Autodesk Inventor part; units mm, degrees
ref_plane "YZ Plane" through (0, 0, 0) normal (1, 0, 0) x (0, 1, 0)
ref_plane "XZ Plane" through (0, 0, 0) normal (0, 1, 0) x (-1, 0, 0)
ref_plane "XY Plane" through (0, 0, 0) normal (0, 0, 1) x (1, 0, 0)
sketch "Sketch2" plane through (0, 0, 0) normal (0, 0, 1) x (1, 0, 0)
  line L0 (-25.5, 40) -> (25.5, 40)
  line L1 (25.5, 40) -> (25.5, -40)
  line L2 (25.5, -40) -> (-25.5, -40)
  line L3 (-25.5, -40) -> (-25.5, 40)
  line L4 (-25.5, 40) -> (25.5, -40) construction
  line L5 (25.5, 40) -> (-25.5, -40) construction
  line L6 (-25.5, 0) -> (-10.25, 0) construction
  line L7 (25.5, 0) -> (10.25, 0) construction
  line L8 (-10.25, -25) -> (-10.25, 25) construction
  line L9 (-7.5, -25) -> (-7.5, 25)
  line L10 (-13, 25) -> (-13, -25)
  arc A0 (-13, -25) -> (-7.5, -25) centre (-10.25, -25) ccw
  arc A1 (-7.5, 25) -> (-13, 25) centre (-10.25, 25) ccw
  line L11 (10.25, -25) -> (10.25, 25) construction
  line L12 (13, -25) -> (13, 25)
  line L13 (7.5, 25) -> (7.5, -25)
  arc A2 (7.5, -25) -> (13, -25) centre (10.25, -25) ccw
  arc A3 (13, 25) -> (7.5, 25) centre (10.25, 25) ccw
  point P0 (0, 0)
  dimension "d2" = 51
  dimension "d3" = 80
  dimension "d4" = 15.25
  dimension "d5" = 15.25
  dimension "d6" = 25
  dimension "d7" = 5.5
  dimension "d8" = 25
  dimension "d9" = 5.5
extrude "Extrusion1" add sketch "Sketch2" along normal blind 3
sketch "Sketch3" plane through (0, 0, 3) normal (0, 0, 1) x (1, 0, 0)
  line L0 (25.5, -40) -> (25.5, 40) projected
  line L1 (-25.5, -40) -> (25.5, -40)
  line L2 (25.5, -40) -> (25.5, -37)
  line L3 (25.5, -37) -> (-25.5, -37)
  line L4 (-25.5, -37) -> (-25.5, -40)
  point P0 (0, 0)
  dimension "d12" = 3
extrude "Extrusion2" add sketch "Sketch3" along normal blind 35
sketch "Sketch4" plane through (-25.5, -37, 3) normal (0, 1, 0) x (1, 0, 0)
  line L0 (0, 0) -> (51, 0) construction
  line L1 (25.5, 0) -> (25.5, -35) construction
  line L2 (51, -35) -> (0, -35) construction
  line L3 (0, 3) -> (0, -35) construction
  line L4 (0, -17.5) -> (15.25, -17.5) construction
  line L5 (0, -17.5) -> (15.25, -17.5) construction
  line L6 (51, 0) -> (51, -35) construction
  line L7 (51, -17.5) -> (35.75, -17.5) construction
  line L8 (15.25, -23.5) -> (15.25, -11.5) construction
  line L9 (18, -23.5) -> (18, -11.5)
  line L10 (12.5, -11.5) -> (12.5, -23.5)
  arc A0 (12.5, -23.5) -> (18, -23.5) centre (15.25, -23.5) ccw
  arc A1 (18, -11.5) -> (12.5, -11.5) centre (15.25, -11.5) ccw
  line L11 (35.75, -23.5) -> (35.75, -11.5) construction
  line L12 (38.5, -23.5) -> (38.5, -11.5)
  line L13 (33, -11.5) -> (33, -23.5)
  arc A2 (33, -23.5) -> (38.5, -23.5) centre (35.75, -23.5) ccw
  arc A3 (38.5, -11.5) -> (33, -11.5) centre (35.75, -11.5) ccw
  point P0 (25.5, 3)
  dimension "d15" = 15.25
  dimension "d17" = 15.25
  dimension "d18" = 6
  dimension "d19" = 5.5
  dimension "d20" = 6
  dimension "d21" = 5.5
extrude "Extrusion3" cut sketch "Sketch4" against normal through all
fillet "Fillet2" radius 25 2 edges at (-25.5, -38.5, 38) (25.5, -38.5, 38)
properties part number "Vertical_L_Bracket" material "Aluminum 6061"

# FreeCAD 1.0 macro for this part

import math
import FreeCAD as App
import Part
import Sketcher


def edges_at(feature, points):
    """Names of the edges that pass closest to the given points."""
    edges = feature.Shape.Edges
    near = lambda p: min(range(len(edges)), key=lambda i: edges[i].distToShape(Part.Vertex(*p))[0])
    return sorted({f"Edge{near(p) + 1}" for p in points})

doc = App.newDocument("Part")
body = doc.addObject("PartDesign::Body", "Body")

# Sketch on XY plane
sketch1 = body.newObject("Sketcher::SketchObject", "Sketch")
sketch1.AttachmentSupport = (doc.getObject("XY_Plane"), [""])
sketch1.MapMode = "FlatFace"
sketch1.addGeometry(Part.LineSegment(App.Vector(25.5, 40, 0), App.Vector(-25.5, 40, 0)), False)
sketch1.addGeometry(Part.LineSegment(App.Vector(-25.5, 40, 0), App.Vector(-25.5, -40, 0)), False)
sketch1.addGeometry(Part.LineSegment(App.Vector(-25.5, -40, 0), App.Vector(25.5, -40, 0)), False)
sketch1.addGeometry(Part.LineSegment(App.Vector(25.5, -40, 0), App.Vector(25.5, 40, 0)), False)
sketch1.addGeometry(Part.LineSegment(App.Vector(-7.5, 25, 0), App.Vector(-7.5, -25, 0)), False)
sketch1.addGeometry(Part.ArcOfCircle(Part.Circle(App.Vector(-10.2, -25, 0), App.Vector(0, 0, 1), 2.8), math.radians(180), math.radians(360)), False)
sketch1.addGeometry(Part.LineSegment(App.Vector(-13, -25, 0), App.Vector(-13, 25, 0)), False)
sketch1.addGeometry(Part.ArcOfCircle(Part.Circle(App.Vector(-10.2, 25, 0), App.Vector(0, 0, 1), 2.8), math.radians(0), math.radians(180)), False)
sketch1.addGeometry(Part.LineSegment(App.Vector(13, 25, 0), App.Vector(13, -25, 0)), False)
sketch1.addGeometry(Part.ArcOfCircle(Part.Circle(App.Vector(10.2, -25, 0), App.Vector(0, 0, 1), 2.8), math.radians(180), math.radians(360)), False)
sketch1.addGeometry(Part.LineSegment(App.Vector(7.5, -25, 0), App.Vector(7.5, 25, 0)), False)
sketch1.addGeometry(Part.ArcOfCircle(Part.Circle(App.Vector(10.2, 25, 0), App.Vector(0, 0, 1), 2.8), math.radians(0), math.radians(180)), False)
sketch1.addConstraint(Sketcher.Constraint("Coincident", 0, 2, 1, 1))
sketch1.addConstraint(Sketcher.Constraint("Coincident", 1, 2, 2, 1))
sketch1.addConstraint(Sketcher.Constraint("Coincident", 2, 2, 3, 1))
sketch1.addConstraint(Sketcher.Constraint("Coincident", 3, 2, 0, 1))
sketch1.addConstraint(Sketcher.Constraint("Tangent", 4, 2, 5, 2))
sketch1.addConstraint(Sketcher.Constraint("Tangent", 5, 1, 6, 1))
sketch1.addConstraint(Sketcher.Constraint("Tangent", 6, 2, 7, 2))
sketch1.addConstraint(Sketcher.Constraint("Tangent", 7, 1, 4, 1))
sketch1.addConstraint(Sketcher.Constraint("Tangent", 8, 2, 9, 2))
sketch1.addConstraint(Sketcher.Constraint("Tangent", 9, 1, 10, 1))
sketch1.addConstraint(Sketcher.Constraint("Tangent", 10, 2, 11, 2))
sketch1.addConstraint(Sketcher.Constraint("Tangent", 11, 1, 8, 1))
sketch1.addConstraint(Sketcher.Constraint("Horizontal", 0))
sketch1.addConstraint(Sketcher.Constraint("Vertical", 1))
sketch1.addConstraint(Sketcher.Constraint("Horizontal", 2))
sketch1.addConstraint(Sketcher.Constraint("Vertical", 3))
sketch1.addConstraint(Sketcher.Constraint("Vertical", 4))
sketch1.addConstraint(Sketcher.Constraint("Vertical", 6))
sketch1.addConstraint(Sketcher.Constraint("Vertical", 8))
sketch1.addConstraint(Sketcher.Constraint("Vertical", 10))
sketch1.addConstraint(Sketcher.Constraint("Equal", 7, 9))
sketch1.addConstraint(Sketcher.Constraint("Symmetric", 7, 3, 9, 3, -1, 1))
sketch1.addConstraint(Sketcher.Constraint("Symmetric", 0, 2, 2, 2, -1, 1))
sketch1.addConstraint(Sketcher.Constraint("Horizontal", 5, 3, 9, 3))
sketch1.addConstraint(Sketcher.Constraint("Horizontal", 7, 3, 11, 3))
sketch1.addConstraint(Sketcher.Constraint("DistanceX", 0, 2, 0, 1, 51.0))
sketch1.addConstraint(Sketcher.Constraint("DistanceY", 1, 2, 1, 1, 80.0))
sketch1.addConstraint(Sketcher.Constraint("Radius", 5, 2.75))
sketch1.addConstraint(Sketcher.Constraint("DistanceY", 5, 3, -1, 1, 25.0))
sketch1.addConstraint(Sketcher.Constraint("DistanceX", 0, 2, 7, 3, 15.25))
pad1 = body.newObject("PartDesign::Pad", "Pad")
pad1.Profile = sketch1
pad1.Length = 3

# Sketch on XY plane
sketch2 = body.newObject("Sketcher::SketchObject", "Sketch001")
sketch2.AttachmentSupport = (doc.getObject("XY_Plane"), [""])
sketch2.MapMode = "FlatFace"
sketch2.AttachmentOffset = App.Placement(App.Vector(0, 0, 3), App.Rotation())
sketch2.addGeometry(Part.LineSegment(App.Vector(-25.5, -40, 0), App.Vector(25.5, -40, 0)), False)
sketch2.addGeometry(Part.LineSegment(App.Vector(25.5, -40, 0), App.Vector(25.5, -37, 0)), False)
sketch2.addGeometry(Part.LineSegment(App.Vector(25.5, -37, 0), App.Vector(-25.5, -37, 0)), False)
sketch2.addGeometry(Part.LineSegment(App.Vector(-25.5, -37, 0), App.Vector(-25.5, -40, 0)), False)
sketch2.addConstraint(Sketcher.Constraint("Coincident", 0, 2, 1, 1))
sketch2.addConstraint(Sketcher.Constraint("Coincident", 1, 2, 2, 1))
sketch2.addConstraint(Sketcher.Constraint("Coincident", 2, 2, 3, 1))
sketch2.addConstraint(Sketcher.Constraint("Coincident", 3, 2, 0, 1))
sketch2.addConstraint(Sketcher.Constraint("Horizontal", 0))
sketch2.addConstraint(Sketcher.Constraint("Vertical", 1))
sketch2.addConstraint(Sketcher.Constraint("Horizontal", 2))
sketch2.addConstraint(Sketcher.Constraint("Vertical", 3))
sketch2.addConstraint(Sketcher.Constraint("DistanceY", 1, 1, 1, 2, 3.0))
sketch2.addConstraint(Sketcher.Constraint("DistanceX", 0, 1, 0, 2, 51.0))
sketch2.addConstraint(Sketcher.Constraint("DistanceY", 0, 2, -1, 1, 40.0))
sketch2.addConstraint(Sketcher.Constraint("DistanceX", -1, 1, 0, 2, 25.5))
pad2 = body.newObject("PartDesign::Pad", "Pad001")
pad2.Profile = sketch2
pad2.Length = 35

# Sketch on XZ plane
sketch3 = body.newObject("Sketcher::SketchObject", "Sketch002")
sketch3.AttachmentSupport = (doc.getObject("XZ_Plane"), [""])
sketch3.MapMode = "FlatFace"
sketch3.AttachmentOffset = App.Placement(App.Vector(0, 0, 37), App.Rotation())
sketch3.addGeometry(Part.ArcOfCircle(Part.Circle(App.Vector(-10.2, 26.5, 0), App.Vector(0, 0, 1), 2.8), math.radians(0), math.radians(180)), False)
sketch3.addGeometry(Part.LineSegment(App.Vector(-7.5, 26.5, 0), App.Vector(-7.5, 14.5, 0)), False)
sketch3.addGeometry(Part.ArcOfCircle(Part.Circle(App.Vector(-10.2, 14.5, 0), App.Vector(0, 0, 1), 2.8), math.radians(180), math.radians(360)), False)
sketch3.addGeometry(Part.LineSegment(App.Vector(-13, 14.5, 0), App.Vector(-13, 26.5, 0)), False)
sketch3.addGeometry(Part.ArcOfCircle(Part.Circle(App.Vector(10.2, 26.5, 0), App.Vector(0, 0, 1), 2.8), math.radians(0), math.radians(180)), False)
sketch3.addGeometry(Part.LineSegment(App.Vector(13, 26.5, 0), App.Vector(13, 14.5, 0)), False)
sketch3.addGeometry(Part.ArcOfCircle(Part.Circle(App.Vector(10.2, 14.5, 0), App.Vector(0, 0, 1), 2.8), math.radians(180), math.radians(360)), False)
sketch3.addGeometry(Part.LineSegment(App.Vector(7.5, 14.5, 0), App.Vector(7.5, 26.5, 0)), False)
sketch3.addConstraint(Sketcher.Constraint("Tangent", 0, 1, 1, 1))
sketch3.addConstraint(Sketcher.Constraint("Tangent", 1, 2, 2, 2))
sketch3.addConstraint(Sketcher.Constraint("Tangent", 2, 1, 3, 1))
sketch3.addConstraint(Sketcher.Constraint("Tangent", 3, 2, 0, 2))
sketch3.addConstraint(Sketcher.Constraint("Tangent", 4, 1, 5, 1))
sketch3.addConstraint(Sketcher.Constraint("Tangent", 5, 2, 6, 2))
sketch3.addConstraint(Sketcher.Constraint("Tangent", 6, 1, 7, 1))
sketch3.addConstraint(Sketcher.Constraint("Tangent", 7, 2, 4, 2))
sketch3.addConstraint(Sketcher.Constraint("Vertical", 1))
sketch3.addConstraint(Sketcher.Constraint("Vertical", 3))
sketch3.addConstraint(Sketcher.Constraint("Vertical", 5))
sketch3.addConstraint(Sketcher.Constraint("Vertical", 7))
sketch3.addConstraint(Sketcher.Constraint("Equal", 2, 4))
sketch3.addConstraint(Sketcher.Constraint("Symmetric", 0, 3, 4, 3, -2))
sketch3.addConstraint(Sketcher.Constraint("Horizontal", 2, 3, 6, 3))
sketch3.addConstraint(Sketcher.Constraint("Radius", 0, 2.75))
sketch3.addConstraint(Sketcher.Constraint("DistanceY", 1, 2, 1, 1, 12.0))
sketch3.addConstraint(Sketcher.Constraint("DistanceX", 2, 1, -1, 1, 13.0))
sketch3.addConstraint(Sketcher.Constraint("DistanceY", -1, 1, 0, 3, 26.5))
pocket1 = body.newObject("PartDesign::Pocket", "Pocket")
pocket1.Profile = sketch3
pocket1.Type = "ThroughAll"
pocket1.Reversed = True
doc.recompute()

fillet = body.newObject("PartDesign::Fillet", "Fillet")
fillet.Base = (pocket1, edges_at(pocket1, [(-25.5, -38.5, 38), (25.5, -38.5, 38)]))
fillet.Radius = 25

doc.recompute()
